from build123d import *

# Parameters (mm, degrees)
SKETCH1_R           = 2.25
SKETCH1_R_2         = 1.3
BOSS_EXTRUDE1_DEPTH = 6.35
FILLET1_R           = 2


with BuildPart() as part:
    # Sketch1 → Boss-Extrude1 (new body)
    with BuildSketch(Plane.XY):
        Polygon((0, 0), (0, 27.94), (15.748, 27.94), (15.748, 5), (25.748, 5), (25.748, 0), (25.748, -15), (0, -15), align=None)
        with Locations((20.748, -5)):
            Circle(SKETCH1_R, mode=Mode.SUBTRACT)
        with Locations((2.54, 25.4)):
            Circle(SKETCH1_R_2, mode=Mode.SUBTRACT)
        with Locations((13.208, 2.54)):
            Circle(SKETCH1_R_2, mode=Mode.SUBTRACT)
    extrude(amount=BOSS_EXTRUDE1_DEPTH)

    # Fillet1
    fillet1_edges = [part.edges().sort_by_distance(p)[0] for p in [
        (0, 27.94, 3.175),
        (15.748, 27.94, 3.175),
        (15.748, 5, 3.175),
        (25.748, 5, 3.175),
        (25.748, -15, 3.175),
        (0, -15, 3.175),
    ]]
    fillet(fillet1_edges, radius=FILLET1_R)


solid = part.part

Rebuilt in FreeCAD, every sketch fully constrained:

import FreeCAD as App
import Part
import Sketcher
from FreeCAD import Vector


def edges_at(feature, points):
    """Names of the edges that pass closest to the given points."""
    edges = feature.Shape.Edges
    near = lambda p: min(range(len(edges)), key=lambda i: edges[i].distToShape(Part.Vertex(*p))[0])
    return sorted({f"Edge{near(p) + 1}" for p in points})


def add_polygon(sketch, points):
    """Adds a closed chain of lines whose ends are joined by coincident constraints."""
    first, n = sketch.GeometryCount, len(points)
    for a, b in zip(points, points[1:] + points[:1]):
        sketch.addGeometry(Part.LineSegment(App.Vector(*a, 0), App.Vector(*b, 0)), False)
    for i in range(n):
        sketch.addConstraint(Sketcher.Constraint("Coincident", first + i, 2, first + (i + 1) % n, 1))

doc = App.newDocument("Part")
body = doc.addObject("PartDesign::Body", "Body")

# Sketch on XY plane
sketch1 = body.newObject("Sketcher::SketchObject", "Sketch")
sketch1.AttachmentSupport = (doc.getObject("XY_Plane"), [""])
sketch1.MapMode = "FlatFace"
add_polygon(sketch1, [(0, 27.9), (0, -15), (25.7, -15), (25.7, 5), (15.7, 5), (15.7, 27.9)])  # lines 0-5
sketch1.addGeometry(Part.Circle(Vector(20.7, -5, 0), Vector(0, 0, 1), 2.2), False)  # 6
sketch1.addGeometry(Part.Circle(Vector(13.2, 2.5, 0), Vector(0, 0, 1), 1.3), False)  # 7
sketch1.addGeometry(Part.Circle(Vector(2.5, 25.4, 0), Vector(0, 0, 1), 1.3), False)  # 8
sketch1.addConstraint([
    Sketcher.Constraint("Vertical", 0),
    Sketcher.Constraint("Horizontal", 1),
    Sketcher.Constraint("Vertical", 2),
    Sketcher.Constraint("Horizontal", 3),
    Sketcher.Constraint("Vertical", 4),
    Sketcher.Constraint("Horizontal", 5),
    Sketcher.Constraint("Equal", 7, 8),
    Sketcher.Constraint("PointOnObject", 0, 2, -2),
    Sketcher.Constraint("Diameter", 6, 4.5),
    Sketcher.Constraint("Diameter", 7, 2.6),
    Sketcher.Constraint("DistanceX", 3, 2, 3, 1, 10.0),
    Sketcher.Constraint("DistanceY", 2, 1, 2, 2, 20.0),
    Sketcher.Constraint("DistanceY", 6, 3, -1, 1, 5.0),
    Sketcher.Constraint("DistanceY", 0, 2, -1, 1, 15.0),
    Sketcher.Constraint("DistanceX", 6, 3, 1, 2, 5.0),
    Sketcher.Constraint("DistanceY", 0, 2, 0, 1, 42.94),
    Sketcher.Constraint("DistanceY", -1, 1, 8, 3, 25.4),
    Sketcher.Constraint("DistanceY", 7, 3, 4, 2, 25.4),
    Sketcher.Constraint("DistanceX", 1, 1, 1, 2, 25.748),
    Sketcher.Constraint("DistanceX", -1, 1, 8, 3, 2.54),
    Sketcher.Constraint("DistanceX", 7, 3, 6, 3, 7.54),
])
pad1 = body.newObject("PartDesign::Pad", "Pad")
pad1.Profile = sketch1
pad1.Length = 6.35
doc.recompute()

fillet = body.newObject("PartDesign::Fillet", "Fillet")
fillet.Base = (pad1, edges_at(pad1, [
    (0, 27.94, 3.175),
    (15.748, 27.94, 3.175),
    (15.748, 5, 3.175),
    (25.748, 5, 3.175),
    (25.748, -15, 3.175),
    (0, -15, 3.175),
]))
fillet.Radius = 2

doc.recompute()
